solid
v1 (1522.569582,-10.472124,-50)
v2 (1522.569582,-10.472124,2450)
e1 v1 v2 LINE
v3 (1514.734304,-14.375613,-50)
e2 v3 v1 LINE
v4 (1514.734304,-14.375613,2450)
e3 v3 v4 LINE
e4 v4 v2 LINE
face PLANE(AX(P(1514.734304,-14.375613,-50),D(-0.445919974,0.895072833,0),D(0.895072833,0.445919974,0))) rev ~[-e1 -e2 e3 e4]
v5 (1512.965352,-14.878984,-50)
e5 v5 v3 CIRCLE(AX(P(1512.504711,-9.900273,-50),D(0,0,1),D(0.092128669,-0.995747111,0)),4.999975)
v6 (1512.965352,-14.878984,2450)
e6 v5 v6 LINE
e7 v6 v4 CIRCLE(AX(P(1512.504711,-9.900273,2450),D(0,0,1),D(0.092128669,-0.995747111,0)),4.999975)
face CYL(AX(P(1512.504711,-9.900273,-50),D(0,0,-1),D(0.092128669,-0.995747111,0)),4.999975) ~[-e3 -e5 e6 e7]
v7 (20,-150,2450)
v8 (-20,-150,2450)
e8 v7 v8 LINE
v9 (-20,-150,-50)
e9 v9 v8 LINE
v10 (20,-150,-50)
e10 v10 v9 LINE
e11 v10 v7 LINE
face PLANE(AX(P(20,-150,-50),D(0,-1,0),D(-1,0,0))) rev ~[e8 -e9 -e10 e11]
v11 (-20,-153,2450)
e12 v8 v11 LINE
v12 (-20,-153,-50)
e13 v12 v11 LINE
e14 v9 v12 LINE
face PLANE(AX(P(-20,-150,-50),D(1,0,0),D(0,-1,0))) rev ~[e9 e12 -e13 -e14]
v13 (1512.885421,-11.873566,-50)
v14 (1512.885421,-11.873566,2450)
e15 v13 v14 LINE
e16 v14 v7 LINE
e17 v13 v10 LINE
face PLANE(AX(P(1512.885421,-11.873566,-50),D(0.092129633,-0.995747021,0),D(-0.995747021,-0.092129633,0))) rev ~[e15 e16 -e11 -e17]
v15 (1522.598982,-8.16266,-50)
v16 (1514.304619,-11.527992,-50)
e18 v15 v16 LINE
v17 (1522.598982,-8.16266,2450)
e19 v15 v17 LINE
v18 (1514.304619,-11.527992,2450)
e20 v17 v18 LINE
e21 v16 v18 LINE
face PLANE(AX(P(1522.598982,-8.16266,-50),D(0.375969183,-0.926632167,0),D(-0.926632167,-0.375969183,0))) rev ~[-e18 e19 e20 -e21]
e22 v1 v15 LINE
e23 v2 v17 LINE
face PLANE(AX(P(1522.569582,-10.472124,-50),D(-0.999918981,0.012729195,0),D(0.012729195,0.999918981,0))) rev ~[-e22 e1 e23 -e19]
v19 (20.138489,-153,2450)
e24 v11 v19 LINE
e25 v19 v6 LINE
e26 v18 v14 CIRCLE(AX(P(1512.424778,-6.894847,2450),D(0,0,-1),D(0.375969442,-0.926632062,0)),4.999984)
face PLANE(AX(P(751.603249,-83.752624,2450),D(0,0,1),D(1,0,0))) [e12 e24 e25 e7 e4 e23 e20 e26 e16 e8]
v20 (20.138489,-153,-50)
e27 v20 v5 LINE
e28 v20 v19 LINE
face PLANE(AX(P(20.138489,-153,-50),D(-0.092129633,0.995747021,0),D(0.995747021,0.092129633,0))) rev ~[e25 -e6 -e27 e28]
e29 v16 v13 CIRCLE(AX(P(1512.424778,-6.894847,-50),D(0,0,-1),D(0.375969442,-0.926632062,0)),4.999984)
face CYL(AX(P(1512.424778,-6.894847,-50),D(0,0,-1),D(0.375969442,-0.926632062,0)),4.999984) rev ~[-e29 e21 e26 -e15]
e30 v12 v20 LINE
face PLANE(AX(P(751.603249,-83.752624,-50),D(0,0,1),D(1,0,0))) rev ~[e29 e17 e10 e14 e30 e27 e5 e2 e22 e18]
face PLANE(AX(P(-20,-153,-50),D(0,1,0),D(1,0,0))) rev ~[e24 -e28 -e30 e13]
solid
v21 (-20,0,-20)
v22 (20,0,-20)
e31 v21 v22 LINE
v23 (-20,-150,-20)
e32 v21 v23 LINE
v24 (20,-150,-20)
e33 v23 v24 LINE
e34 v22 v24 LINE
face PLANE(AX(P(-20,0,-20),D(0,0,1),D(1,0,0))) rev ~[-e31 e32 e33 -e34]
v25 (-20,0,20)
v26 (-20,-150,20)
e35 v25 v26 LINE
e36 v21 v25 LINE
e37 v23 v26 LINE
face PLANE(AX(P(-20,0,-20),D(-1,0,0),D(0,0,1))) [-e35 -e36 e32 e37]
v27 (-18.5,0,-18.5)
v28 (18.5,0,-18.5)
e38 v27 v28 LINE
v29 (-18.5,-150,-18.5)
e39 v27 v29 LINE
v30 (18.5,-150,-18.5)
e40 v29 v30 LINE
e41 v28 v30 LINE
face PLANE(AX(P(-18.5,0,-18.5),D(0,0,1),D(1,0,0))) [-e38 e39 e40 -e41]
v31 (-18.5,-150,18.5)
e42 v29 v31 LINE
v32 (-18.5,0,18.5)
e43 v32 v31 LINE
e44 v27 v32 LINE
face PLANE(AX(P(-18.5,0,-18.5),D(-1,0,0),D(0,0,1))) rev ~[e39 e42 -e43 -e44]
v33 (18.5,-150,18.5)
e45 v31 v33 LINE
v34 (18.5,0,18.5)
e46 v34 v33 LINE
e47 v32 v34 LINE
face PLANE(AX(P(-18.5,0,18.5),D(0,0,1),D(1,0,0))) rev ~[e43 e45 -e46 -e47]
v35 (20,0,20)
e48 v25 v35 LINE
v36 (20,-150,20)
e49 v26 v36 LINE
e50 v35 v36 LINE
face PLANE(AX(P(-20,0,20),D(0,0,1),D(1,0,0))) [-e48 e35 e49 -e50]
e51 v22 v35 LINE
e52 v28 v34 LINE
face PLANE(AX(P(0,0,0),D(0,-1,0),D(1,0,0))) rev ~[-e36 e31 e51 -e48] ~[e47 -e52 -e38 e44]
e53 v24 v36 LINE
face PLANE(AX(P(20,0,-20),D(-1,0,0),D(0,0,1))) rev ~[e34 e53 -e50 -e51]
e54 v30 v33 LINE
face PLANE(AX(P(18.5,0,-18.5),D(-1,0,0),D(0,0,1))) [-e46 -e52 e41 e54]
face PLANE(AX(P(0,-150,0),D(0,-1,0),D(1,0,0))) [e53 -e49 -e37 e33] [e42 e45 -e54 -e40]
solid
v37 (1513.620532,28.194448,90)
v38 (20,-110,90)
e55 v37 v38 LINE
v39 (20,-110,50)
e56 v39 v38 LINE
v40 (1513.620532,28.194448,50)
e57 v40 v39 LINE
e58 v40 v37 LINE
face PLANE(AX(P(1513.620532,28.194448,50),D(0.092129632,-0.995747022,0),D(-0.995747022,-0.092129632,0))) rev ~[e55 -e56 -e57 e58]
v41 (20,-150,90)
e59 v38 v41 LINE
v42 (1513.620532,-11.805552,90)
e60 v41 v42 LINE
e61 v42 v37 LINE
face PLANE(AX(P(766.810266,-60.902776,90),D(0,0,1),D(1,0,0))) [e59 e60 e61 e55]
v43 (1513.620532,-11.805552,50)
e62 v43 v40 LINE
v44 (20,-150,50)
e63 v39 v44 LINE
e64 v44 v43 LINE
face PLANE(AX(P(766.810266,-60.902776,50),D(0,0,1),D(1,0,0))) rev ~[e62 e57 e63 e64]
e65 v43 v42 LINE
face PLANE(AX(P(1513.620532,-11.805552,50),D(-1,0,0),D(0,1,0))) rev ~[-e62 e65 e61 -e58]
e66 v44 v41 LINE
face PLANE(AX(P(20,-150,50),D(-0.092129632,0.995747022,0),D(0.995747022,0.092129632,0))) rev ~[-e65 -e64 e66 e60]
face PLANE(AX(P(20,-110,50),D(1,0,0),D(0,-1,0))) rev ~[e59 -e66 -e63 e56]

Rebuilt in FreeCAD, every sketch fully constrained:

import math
import FreeCAD as App
import Part
import Sketcher
from FreeCAD import Vector
Q = App.Units.Quantity


def add_polygon(sketch, points):
    """Adds a closed chain of lines whose ends are joined by coincident constraints."""
    first, n = sketch.GeometryCount, len(points)
    for a, b in zip(points, points[1:] + points[:1]):
        sketch.addGeometry(Part.LineSegment(App.Vector(*a, 0), App.Vector(*b, 0)), False)
    for i in range(n):
        sketch.addConstraint(Sketcher.Constraint("Coincident", first + i, 2, first + (i + 1) % n, 1))

doc = App.newDocument("Part")
body = doc.addObject("PartDesign::Body", "Body")

# Sketch on XZ plane
sketch1 = body.newObject("Sketcher::SketchObject", "Sketch")
sketch1.AttachmentSupport = (doc.getObject("XZ_Plane"), [""])
sketch1.MapMode = "FlatFace"
add_polygon(sketch1, [(-20, 20), (-20, -20), (20, -20), (20, 20)])  # lines 0-3
add_polygon(sketch1, [(18, -18), (-18, -18), (-18, 18), (18, 18)])  # lines 4-7
sketch1.addConstraint([
    Sketcher.Constraint("Vertical", 0),
    Sketcher.Constraint("Horizontal", 1),
    Sketcher.Constraint("Vertical", 2),
    Sketcher.Constraint("Horizontal", 3),
    Sketcher.Constraint("Horizontal", 4),
    Sketcher.Constraint("Vertical", 5),
    Sketcher.Constraint("Horizontal", 6),
    Sketcher.Constraint("Vertical", 7),
    Sketcher.Constraint("Symmetric", 0, 2, 2, 2, -1, 1),
    Sketcher.Constraint("Symmetric", 4, 2, 6, 2, -1, 1),
    Sketcher.Constraint("Equal", 3, 0),
    Sketcher.Constraint("Equal", 6, 5),
    Sketcher.Constraint("DistanceX", 1, 1, 1, 2, Q("40 mm")),
    Sketcher.Constraint("DistanceX", 4, 2, 4, 1, Q("37 mm")),
])
pad1 = body.newObject("PartDesign::Pad", "Pad")
pad1.Profile = sketch1
pad1.Length = 150
body2 = doc.addObject("PartDesign::Body", "Body001")

# Sketch on XY plane
sketch2 = body2.newObject("Sketcher::SketchObject", "Sketch001")
sketch2.AttachmentSupport = (doc.getObject("XY_Plane001"), [""])
sketch2.MapMode = "FlatFace"
sketch2.AttachmentOffset = App.Placement(Vector(0, 0, 50), App.Rotation())
add_polygon(sketch2, [(20, -110), (20, -150), (1514, -12), (1514, 28)])  # lines 0-3
sketch2.addConstraint([
    Sketcher.Constraint("Vertical", 0),
    Sketcher.Constraint("Vertical", 2),
    Sketcher.Constraint("Parallel", 1, 3),
    Sketcher.Constraint("DistanceY", 0, 2, 0, 1, Q("40 mm")),
    Sketcher.Constraint("Distance", 1, Q("1500 mm")),
    Sketcher.Constraint("DistanceX", -1, 1, 0, 2, Q("20 mm")),
    Sketcher.Constraint("DistanceY", 0, 2, -1, 1, Q("150 mm")),
    Sketcher.Constraint("DistanceX", -1, 1, 1, 2, Q("1513.620532 mm")),
])
pad2 = body2.newObject("PartDesign::Pad", "Pad001")
pad2.Profile = sketch2
pad2.Length = 40
body3 = doc.addObject("PartDesign::Body", "Body002")

# Sketch on XY plane
sketch3 = body3.newObject("Sketcher::SketchObject", "Sketch002")
sketch3.AttachmentSupport = (doc.getObject("XY_Plane002"), [""])
sketch3.MapMode = "FlatFace"
sketch3.AttachmentOffset = App.Placement(Vector(0, 0, -50), App.Rotation())
sketch3.addGeometry([
    Part.LineSegment(Vector(-20, -153, 0), Vector(20.138489, -153, 0)),  # 0
    Part.LineSegment(Vector(20.138489, -153, 0), Vector(1512.965352, -14.878984, 0)),  # 1
    Part.ArcOfCircle(Part.Circle(Vector(1512.504711, -9.900273, 0), Vector(0, 0, 1), 4.999975), math.radians(-84.71392), math.radians(-63.517733)),  # 2
    Part.LineSegment(Vector(1514.734304, -14.375613, 0), Vector(1522.569582, -10.472124, 0)),  # 3
    Part.LineSegment(Vector(1522.569582, -10.472124, 0), Vector(1522.598982, -8.16266, 0)),  # 4
    Part.LineSegment(Vector(1522.598982, -8.16266, 0), Vector(1514.304619, -11.527992, 0)),  # 5
    Part.ArcOfCircle(Part.Circle(Vector(1512.424778, -6.894847, 0), Vector(0, 0, 1), 4.999984), math.radians(-84.713906), math.radians(-67.915757)),  # 6
    Part.LineSegment(Vector(1512.885421, -11.873566, 0), Vector(20, -150, 0)),  # 7
    Part.LineSegment(Vector(20, -150, 0), Vector(-20, -150, 0)),  # 8
    Part.LineSegment(Vector(-20, -150, 0), Vector(-20, -153, 0)),  # 9
], False)
sketch3.addConstraint([
    Sketcher.Constraint("Coincident", 0, 2, 1, 1),
    Sketcher.Constraint("Coincident", 1, 2, 2, 1),
    Sketcher.Constraint("Coincident", 2, 2, 3, 1),
    Sketcher.Constraint("Coincident", 3, 2, 4, 1),
    Sketcher.Constraint("Coincident", 4, 2, 5, 1),
    Sketcher.Constraint("Coincident", 5, 2, 6, 2),
    Sketcher.Constraint("Coincident", 6, 1, 7, 1),
    Sketcher.Constraint("Coincident", 7, 2, 8, 1),
    Sketcher.Constraint("Coincident", 8, 2, 9, 1),
    Sketcher.Constraint("Coincident", 9, 2, 0, 1),
    Sketcher.Constraint("Horizontal", 0),
    Sketcher.Constraint("Horizontal", 8),
    Sketcher.Constraint("Vertical", 9),
    Sketcher.Constraint("DistanceX", 8, 2, 8, 1, Q("40 mm")),
    Sketcher.Constraint("DistanceY", 9, 2, 9, 1, Q("3 mm")),
    Sketcher.Constraint("DistanceY", 0, 2, -1, 1, Q("153 mm")),
    Sketcher.Constraint("DistanceX", -1, 1, 7, 2, Q("20 mm")),
    Sketcher.Constraint("Radius", 2, Q("4.999975 mm")),
    Sketcher.Constraint("Radius", 6, Q("4.999984 mm")),
    Sketcher.Constraint("DistanceX", 0, 1, 0, 2, Q("40.138489 mm")),
    Sketcher.Constraint("DistanceX", 3, 2, 4, 2, Q("0.0294 mm")),
    Sketcher.Constraint("Distance", 1, Q("1499.202941 mm")),
    Sketcher.Constraint("Distance", 3, Q("8.753788 mm")),
    Sketcher.Constraint("Distance", 4, Q("2.309651 mm")),
    Sketcher.Constraint("Distance", 7, Q("1499.261749 mm")),
    Sketcher.Constraint("DistanceX", -1, 1, 2, 3, Q("1512.504711 mm")),
    Sketcher.Constraint("DistanceX", -1, 1, 1, 2, Q("1512.965352 mm")),
    Sketcher.Constraint("DistanceX", -1, 1, 3, 2, Q("1522.569582 mm")),
    Sketcher.Constraint("DistanceY", 4, 2, -1, 1, Q("8.16266 mm")),
    Sketcher.Constraint("DistanceX", -1, 1, 5, 2, Q("1514.304619 mm")),
    Sketcher.Constraint("DistanceY", 5, 2, -1, 1, Q("11.527992 mm")),
    Sketcher.Constraint("DistanceX", -1, 1, 6, 1, Q("1512.885421 mm")),
])
pad3 = body3.newObject("PartDesign::Pad", "Pad002")
pad3.Profile = sketch3
pad3.Length = 2500

doc.recompute()
